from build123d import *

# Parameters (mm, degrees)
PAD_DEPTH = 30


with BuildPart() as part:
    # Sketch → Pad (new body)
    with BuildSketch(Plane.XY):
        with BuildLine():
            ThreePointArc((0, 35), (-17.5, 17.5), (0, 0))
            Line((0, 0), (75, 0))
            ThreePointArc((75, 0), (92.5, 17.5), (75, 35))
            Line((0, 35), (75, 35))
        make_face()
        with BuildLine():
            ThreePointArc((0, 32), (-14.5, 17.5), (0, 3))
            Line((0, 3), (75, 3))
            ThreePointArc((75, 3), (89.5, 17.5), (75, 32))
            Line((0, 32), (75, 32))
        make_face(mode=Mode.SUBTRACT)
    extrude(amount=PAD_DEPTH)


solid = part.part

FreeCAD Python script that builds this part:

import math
import FreeCAD as App
import Part
import Sketcher

doc = App.newDocument("Part")
params = doc.addObject("Spreadsheet::Sheet", "Params")
for row, (alias, value) in enumerate([
    ("sketch1_radius", "17.5 mm"),
    ("sketch1_radius2", "14.5 mm"),
    ("sketch1_width", "75 mm"),
    ("pad1_length", "30 mm"),
], start=1):
    params.set(f"A{row}", alias)
    params.set(f"B{row}", "=" + value)
    params.setAlias(f"B{row}", alias)

body = doc.addObject("PartDesign::Body", "Body")

# Sketch on XY plane
sketch1 = body.newObject("Sketcher::SketchObject", "Sketch")
sketch1.AttachmentSupport = (doc.getObject("XY_Plane"), [""])
sketch1.MapMode = "FlatFace"
sketch1.addGeometry([
    Part.ArcOfCircle(Part.Circle(App.Vector(0, 17.5, 0), App.Vector(0, 0, 1), 17.5), math.radians(90), math.radians(270)),  # 0
    Part.LineSegment(App.Vector(0, 0, 0), App.Vector(75, 0, 0)),  # 1
    Part.ArcOfCircle(Part.Circle(App.Vector(75, 17.5, 0), App.Vector(0, 0, 1), 17.5), math.radians(-90), math.radians(90)),  # 2
    Part.LineSegment(App.Vector(75, 35, 0), App.Vector(0, 35, 0)),  # 3
    Part.ArcOfCircle(Part.Circle(App.Vector(0, 17.5, 0), App.Vector(0, 0, 1), 14.5), math.radians(90), math.radians(270)),  # 4
    Part.LineSegment(App.Vector(0, 32, 0), App.Vector(75, 32, 0)),  # 5
    Part.ArcOfCircle(Part.Circle(App.Vector(75, 17.5, 0), App.Vector(0, 0, 1), 14.5), math.radians(-90), math.radians(90)),  # 6
    Part.LineSegment(App.Vector(75, 3, 0), App.Vector(0, 3, 0)),  # 7
], False)
sketch1.addConstraint([
    Sketcher.Constraint("Tangent", 0, 2, 1, 1),
    Sketcher.Constraint("Tangent", 1, 2, 2, 1),
    Sketcher.Constraint("Tangent", 2, 2, 3, 1),
    Sketcher.Constraint("Tangent", 3, 2, 0, 1),
    Sketcher.Constraint("Tangent", 4, 1, 5, 1),
    Sketcher.Constraint("Tangent", 5, 2, 6, 2),
    Sketcher.Constraint("Tangent", 6, 1, 7, 1),
    Sketcher.Constraint("Tangent", 7, 2, 4, 2),
    Sketcher.Constraint("Horizontal", 1),
    Sketcher.Constraint("Horizontal", 3),
    Sketcher.Constraint("Horizontal", 5),
    Sketcher.Constraint("Horizontal", 7),
    Sketcher.Constraint("Coincident", 0, 2, -1, 1),
    Sketcher.Constraint("Coincident", 4, 3, 0, 3),
    Sketcher.Constraint("Vertical", 6, 3, 1, 2),
    Sketcher.Constraint("Radius", 0, 17.5),
    Sketcher.Constraint("Radius", 4, 14.5),
    Sketcher.Constraint("DistanceX", 1, 1, 1, 2, 75.0),
])
sketch1.setExpression("Constraints[15]", "Params.sketch1_radius")
sketch1.setExpression("Constraints[16]", "Params.sketch1_radius2")
sketch1.setExpression("Constraints[17]", "Params.sketch1_width")
pad1 = body.newObject("PartDesign::Pad", "Pad")
pad1.Profile = sketch1
pad1.setExpression("Length", "Params.pad1_length")

doc.recompute()
